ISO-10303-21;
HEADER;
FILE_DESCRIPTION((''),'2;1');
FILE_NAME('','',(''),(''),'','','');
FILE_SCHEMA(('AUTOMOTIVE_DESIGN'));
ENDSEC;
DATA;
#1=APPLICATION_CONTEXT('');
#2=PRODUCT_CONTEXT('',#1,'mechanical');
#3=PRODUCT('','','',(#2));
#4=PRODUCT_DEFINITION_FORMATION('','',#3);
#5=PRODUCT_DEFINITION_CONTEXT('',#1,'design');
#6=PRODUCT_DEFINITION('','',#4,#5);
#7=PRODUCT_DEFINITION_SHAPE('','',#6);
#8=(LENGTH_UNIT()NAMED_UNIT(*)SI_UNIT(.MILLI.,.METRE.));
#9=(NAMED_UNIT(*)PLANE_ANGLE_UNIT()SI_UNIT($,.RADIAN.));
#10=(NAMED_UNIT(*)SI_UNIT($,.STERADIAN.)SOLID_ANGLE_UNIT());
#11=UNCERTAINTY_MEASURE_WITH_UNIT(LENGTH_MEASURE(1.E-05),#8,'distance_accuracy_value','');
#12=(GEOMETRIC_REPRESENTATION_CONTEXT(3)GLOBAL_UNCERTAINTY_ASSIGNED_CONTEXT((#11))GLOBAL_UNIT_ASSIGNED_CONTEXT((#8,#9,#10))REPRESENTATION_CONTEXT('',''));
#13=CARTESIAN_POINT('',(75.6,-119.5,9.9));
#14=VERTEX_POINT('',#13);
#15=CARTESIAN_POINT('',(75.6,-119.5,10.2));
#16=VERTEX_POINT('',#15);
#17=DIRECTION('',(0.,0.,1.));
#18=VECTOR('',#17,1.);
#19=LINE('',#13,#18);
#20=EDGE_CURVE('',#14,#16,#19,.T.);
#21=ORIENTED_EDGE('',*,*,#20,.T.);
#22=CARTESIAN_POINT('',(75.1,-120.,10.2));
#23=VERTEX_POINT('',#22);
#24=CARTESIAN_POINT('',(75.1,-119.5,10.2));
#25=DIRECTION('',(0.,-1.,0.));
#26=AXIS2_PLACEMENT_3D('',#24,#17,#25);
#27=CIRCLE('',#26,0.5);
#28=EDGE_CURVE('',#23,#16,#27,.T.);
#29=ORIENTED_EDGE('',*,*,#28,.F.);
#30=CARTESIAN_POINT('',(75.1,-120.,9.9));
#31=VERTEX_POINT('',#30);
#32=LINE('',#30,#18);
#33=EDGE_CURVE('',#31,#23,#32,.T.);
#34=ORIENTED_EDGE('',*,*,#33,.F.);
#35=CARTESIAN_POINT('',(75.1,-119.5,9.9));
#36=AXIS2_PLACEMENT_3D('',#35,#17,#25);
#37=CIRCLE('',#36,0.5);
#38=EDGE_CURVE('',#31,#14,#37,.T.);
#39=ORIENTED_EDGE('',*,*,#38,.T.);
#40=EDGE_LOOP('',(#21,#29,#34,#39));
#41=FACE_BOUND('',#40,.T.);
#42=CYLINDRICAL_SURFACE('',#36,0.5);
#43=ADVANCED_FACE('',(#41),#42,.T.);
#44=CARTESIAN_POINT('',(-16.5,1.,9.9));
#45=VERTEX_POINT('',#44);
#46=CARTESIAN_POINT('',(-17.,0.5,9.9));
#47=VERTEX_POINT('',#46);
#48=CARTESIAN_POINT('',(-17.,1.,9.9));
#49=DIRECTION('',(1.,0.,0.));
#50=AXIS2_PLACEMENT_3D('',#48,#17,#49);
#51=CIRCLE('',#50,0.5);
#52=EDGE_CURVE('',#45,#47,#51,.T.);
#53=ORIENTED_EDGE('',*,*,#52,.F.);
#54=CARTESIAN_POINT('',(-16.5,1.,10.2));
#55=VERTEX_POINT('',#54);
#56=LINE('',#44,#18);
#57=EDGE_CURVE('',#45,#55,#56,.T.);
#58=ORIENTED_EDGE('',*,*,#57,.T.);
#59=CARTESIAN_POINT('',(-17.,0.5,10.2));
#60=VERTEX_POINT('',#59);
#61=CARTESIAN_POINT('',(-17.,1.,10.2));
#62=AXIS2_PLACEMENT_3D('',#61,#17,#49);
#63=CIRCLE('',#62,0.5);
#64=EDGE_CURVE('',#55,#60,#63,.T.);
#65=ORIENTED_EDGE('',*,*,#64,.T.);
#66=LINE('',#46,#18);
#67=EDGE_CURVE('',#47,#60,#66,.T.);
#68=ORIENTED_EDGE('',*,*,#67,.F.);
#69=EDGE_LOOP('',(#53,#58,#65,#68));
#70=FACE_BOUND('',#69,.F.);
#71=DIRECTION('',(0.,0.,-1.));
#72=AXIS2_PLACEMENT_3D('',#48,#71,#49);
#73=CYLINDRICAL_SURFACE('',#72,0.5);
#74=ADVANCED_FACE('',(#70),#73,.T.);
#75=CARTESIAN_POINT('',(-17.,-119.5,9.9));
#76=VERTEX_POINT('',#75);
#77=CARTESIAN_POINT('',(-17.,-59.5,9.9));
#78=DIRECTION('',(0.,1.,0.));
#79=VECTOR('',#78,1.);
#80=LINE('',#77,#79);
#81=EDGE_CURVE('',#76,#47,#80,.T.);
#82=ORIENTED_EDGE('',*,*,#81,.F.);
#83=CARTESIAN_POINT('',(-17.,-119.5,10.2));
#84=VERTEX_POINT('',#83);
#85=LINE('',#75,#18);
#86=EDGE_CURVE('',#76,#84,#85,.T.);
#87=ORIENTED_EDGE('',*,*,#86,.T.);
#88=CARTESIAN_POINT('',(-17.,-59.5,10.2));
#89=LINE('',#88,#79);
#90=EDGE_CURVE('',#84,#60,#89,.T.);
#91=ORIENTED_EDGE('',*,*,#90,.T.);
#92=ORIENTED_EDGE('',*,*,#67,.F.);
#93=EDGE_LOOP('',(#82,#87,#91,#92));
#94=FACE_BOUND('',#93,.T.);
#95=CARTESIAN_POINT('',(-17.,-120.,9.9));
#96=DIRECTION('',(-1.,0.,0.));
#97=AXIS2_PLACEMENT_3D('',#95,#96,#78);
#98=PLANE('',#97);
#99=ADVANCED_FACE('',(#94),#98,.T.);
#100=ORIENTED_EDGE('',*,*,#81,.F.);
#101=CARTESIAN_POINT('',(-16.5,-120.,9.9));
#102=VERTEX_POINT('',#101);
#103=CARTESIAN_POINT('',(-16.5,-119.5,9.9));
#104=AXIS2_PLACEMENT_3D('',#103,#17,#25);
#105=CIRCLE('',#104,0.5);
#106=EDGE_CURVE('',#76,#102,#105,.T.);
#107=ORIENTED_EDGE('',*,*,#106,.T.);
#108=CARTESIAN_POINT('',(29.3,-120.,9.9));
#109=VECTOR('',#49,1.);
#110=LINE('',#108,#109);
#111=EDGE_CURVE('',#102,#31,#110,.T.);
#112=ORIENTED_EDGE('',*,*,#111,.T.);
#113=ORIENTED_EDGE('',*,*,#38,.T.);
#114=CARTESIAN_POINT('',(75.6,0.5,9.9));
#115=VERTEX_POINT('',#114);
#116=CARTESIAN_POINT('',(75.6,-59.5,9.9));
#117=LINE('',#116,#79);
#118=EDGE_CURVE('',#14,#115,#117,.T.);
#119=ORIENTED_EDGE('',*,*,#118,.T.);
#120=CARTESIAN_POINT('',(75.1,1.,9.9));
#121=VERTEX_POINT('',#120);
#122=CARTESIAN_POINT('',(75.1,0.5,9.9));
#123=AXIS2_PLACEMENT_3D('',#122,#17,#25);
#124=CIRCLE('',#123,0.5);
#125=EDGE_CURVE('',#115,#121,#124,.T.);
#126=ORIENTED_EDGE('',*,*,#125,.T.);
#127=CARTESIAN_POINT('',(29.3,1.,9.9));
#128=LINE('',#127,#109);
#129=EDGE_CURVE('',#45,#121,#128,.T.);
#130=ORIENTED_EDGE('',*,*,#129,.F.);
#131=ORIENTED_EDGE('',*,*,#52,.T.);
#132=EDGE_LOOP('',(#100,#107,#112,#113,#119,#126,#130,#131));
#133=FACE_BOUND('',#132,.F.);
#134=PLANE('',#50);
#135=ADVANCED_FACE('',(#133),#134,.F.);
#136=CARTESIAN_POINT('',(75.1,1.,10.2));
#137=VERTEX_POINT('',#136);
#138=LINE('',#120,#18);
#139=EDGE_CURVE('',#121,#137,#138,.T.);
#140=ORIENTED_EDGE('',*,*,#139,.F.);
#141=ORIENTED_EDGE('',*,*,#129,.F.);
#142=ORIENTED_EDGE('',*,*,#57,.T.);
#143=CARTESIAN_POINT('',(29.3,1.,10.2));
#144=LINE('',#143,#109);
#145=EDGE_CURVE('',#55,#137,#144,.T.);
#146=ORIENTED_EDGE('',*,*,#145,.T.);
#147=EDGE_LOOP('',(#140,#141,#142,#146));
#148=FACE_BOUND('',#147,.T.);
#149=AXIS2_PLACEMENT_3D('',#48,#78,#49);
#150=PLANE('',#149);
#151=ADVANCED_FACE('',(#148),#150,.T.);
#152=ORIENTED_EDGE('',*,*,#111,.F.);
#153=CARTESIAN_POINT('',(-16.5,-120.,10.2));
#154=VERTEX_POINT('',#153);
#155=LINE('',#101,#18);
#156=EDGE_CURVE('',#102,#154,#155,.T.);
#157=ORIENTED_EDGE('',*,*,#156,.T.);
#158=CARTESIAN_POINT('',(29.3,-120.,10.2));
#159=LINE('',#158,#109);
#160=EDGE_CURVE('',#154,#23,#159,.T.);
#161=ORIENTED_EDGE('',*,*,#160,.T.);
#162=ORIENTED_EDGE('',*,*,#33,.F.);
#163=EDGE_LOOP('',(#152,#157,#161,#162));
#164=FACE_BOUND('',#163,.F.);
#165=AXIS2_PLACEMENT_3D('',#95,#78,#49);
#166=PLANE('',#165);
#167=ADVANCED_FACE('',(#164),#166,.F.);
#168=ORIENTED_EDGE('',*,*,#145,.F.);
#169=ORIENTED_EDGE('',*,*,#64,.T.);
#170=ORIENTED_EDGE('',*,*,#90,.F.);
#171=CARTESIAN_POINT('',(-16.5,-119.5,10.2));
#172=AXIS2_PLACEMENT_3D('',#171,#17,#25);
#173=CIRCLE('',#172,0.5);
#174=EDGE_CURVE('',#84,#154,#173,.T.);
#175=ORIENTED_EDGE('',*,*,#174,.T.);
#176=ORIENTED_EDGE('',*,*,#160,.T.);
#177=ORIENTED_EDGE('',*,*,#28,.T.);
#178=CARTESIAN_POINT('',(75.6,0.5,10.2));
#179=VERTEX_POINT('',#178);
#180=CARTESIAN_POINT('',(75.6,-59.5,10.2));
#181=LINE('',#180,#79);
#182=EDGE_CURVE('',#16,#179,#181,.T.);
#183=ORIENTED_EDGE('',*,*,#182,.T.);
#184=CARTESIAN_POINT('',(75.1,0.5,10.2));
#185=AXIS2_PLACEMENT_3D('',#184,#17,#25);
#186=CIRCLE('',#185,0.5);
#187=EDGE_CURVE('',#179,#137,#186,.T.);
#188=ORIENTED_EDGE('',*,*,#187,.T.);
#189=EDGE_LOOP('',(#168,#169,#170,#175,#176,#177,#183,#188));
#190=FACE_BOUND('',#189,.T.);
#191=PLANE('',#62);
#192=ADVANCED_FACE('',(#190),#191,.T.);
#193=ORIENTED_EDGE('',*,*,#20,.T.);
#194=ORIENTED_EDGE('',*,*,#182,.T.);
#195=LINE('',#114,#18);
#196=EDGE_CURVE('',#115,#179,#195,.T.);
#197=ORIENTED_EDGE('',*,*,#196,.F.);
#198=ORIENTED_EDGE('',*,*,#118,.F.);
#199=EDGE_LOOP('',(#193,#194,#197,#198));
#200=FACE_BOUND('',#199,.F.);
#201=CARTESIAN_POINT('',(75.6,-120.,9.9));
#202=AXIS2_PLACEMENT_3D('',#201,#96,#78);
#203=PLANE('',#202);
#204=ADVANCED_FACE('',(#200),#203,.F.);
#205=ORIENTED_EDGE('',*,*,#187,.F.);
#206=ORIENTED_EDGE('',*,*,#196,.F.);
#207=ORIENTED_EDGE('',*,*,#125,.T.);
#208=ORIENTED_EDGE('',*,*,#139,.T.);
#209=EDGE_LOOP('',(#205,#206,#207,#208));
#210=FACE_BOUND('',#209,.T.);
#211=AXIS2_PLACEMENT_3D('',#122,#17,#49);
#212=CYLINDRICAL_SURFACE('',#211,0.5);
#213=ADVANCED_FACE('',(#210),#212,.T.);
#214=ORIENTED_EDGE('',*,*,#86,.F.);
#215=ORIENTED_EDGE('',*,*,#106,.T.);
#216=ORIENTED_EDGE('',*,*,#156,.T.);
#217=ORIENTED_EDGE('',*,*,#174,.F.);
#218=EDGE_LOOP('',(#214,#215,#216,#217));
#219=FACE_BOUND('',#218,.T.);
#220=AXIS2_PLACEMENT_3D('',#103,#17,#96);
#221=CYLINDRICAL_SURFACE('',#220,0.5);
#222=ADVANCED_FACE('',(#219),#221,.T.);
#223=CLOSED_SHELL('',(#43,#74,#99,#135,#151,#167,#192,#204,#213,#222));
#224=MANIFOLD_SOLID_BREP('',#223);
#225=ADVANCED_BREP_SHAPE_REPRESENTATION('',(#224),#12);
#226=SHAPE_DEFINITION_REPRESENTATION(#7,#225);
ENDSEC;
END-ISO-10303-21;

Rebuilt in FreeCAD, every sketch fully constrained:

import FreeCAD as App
import Part
import Sketcher
from FreeCAD import Vector
Q = App.Units.Quantity


def edges_at(feature, points):
    """Names of the edges that pass closest to the given points."""
    edges = feature.Shape.Edges
    near = lambda p: min(range(len(edges)), key=lambda i: edges[i].distToShape(Part.Vertex(*p))[0])
    return sorted({f"Edge{near(p) + 1}" for p in points})

doc = App.newDocument("Part")
body = doc.addObject("PartDesign::Body", "Body")

# Sketch on XY plane
sketch1 = doc.addObject("Sketcher::SketchObject", "Sketch")
body.addObject(sketch1)
sketch1.AttachmentSupport = (doc.XY_Plane, [""])
sketch1.MapMode = "FlatFace"
sketch1.AttachmentOffset = App.Placement(Vector(0, 0, 10), App.Rotation())
sketch1.addGeometry(Part.Circle(Vector(-17, 1, 0), Vector(0, 0, 1), 0.5), False)
sketch1.addConstraint([
    Sketcher.Constraint("Diameter", 0, Q("1 mm")),
    Sketcher.Constraint("DistanceX", 0, 3, -1, 1, Q("17 mm")),
    Sketcher.Constraint("DistanceY", -1, 1, 0, 3, Q("1 mm")),
])
pad1 = doc.addObject("PartDesign::Pad", "Pad")
body.addObject(pad1)
pad1.Profile = sketch1
pad1.Length = 0.3
body2 = doc.addObject("PartDesign::Body", "Body001")

# Sketch on XY plane
sketch2 = doc.addObject("Sketcher::SketchObject", "Sketch001")
body2.addObject(sketch2)
sketch2.AttachmentSupport = (doc.getObject("XY_Plane001"), [""])
sketch2.MapMode = "FlatFace"
sketch2.AttachmentOffset = App.Placement(Vector(0, 0, 10), App.Rotation())
sketch2.addGeometry([
    Part.LineSegment(Vector(-17, 1, 0), Vector(-17, -120, 0)),
    Part.LineSegment(Vector(-17, -120, 0), Vector(76, -120, 0)),
    Part.LineSegment(Vector(76, -120, 0), Vector(76, 1, 0)),
    Part.LineSegment(Vector(76, 1, 0), Vector(-17, 1, 0)),
], False)
sketch2.addConstraint([
    Sketcher.Constraint("Coincident", 0, 2, 1, 1),
    Sketcher.Constraint("Coincident", 1, 2, 2, 1),
    Sketcher.Constraint("Coincident", 2, 2, 3, 1),
    Sketcher.Constraint("Coincident", 3, 2, 0, 1),
    Sketcher.Constraint("Vertical", 0),
    Sketcher.Constraint("Horizontal", 1),
    Sketcher.Constraint("Vertical", 2),
    Sketcher.Constraint("Horizontal", 3),
    Sketcher.Constraint("DistanceY", 0, 2, 0, 1, Q("121 mm")),
    Sketcher.Constraint("DistanceX", 1, 1, 1, 2, Q("92.6 mm")),
    Sketcher.Constraint("DistanceX", 0, 2, -1, 1, Q("17 mm")),
    Sketcher.Constraint("DistanceY", 0, 2, -1, 1, Q("120 mm")),
])
pad2 = doc.addObject("PartDesign::Pad", "Pad001")
body2.addObject(pad2)
pad2.Profile = sketch2
pad2.Length = 0.3
doc.recompute()

fillet = doc.addObject("PartDesign::Fillet", "Fillet")
body2.addObject(fillet)
fillet.Base = (pad2, edges_at(pad2, [(-17, 1, 10.15)]))
fillet.Radius = 0.5
doc.recompute()

fillet2 = doc.addObject("PartDesign::Fillet", "Fillet001")
body2.addObject(fillet2)
fillet2.Base = (fillet, edges_at(fillet, [(-17, -120, 10.15)]))
fillet2.Radius = 0.5
doc.recompute()

fillet3 = doc.addObject("PartDesign::Fillet", "Fillet002")
body2.addObject(fillet3)
fillet3.Base = (fillet2, edges_at(fillet2, [(75.6, -120, 10.15)]))
fillet3.Radius = 0.5
doc.recompute()

fillet4 = doc.addObject("PartDesign::Fillet", "Fillet003")
body2.addObject(fillet4)
fillet4.Base = (fillet3, edges_at(fillet3, [(75.6, 1, 10.15)]))
fillet4.Radius = 0.5
doc.recompute()

boolean = doc.addObject("PartDesign::Boolean", "Boolean")
body2.addObject(boolean)
boolean.Type = "Fuse"
boolean.addObjects([body])
body3 = doc.addObject("PartDesign::Body", "Body002")
doc.recompute()

body2.Placement = App.Placement(Vector(0, 0, -0.1), App.Rotation(Vector(0, 0, 1), 0))
boolean2 = doc.addObject("PartDesign::Boolean", "Boolean001")
body3.addObject(boolean2)
boolean2.Type = "Fuse"
boolean2.addObjects([body2])

doc.recompute()
